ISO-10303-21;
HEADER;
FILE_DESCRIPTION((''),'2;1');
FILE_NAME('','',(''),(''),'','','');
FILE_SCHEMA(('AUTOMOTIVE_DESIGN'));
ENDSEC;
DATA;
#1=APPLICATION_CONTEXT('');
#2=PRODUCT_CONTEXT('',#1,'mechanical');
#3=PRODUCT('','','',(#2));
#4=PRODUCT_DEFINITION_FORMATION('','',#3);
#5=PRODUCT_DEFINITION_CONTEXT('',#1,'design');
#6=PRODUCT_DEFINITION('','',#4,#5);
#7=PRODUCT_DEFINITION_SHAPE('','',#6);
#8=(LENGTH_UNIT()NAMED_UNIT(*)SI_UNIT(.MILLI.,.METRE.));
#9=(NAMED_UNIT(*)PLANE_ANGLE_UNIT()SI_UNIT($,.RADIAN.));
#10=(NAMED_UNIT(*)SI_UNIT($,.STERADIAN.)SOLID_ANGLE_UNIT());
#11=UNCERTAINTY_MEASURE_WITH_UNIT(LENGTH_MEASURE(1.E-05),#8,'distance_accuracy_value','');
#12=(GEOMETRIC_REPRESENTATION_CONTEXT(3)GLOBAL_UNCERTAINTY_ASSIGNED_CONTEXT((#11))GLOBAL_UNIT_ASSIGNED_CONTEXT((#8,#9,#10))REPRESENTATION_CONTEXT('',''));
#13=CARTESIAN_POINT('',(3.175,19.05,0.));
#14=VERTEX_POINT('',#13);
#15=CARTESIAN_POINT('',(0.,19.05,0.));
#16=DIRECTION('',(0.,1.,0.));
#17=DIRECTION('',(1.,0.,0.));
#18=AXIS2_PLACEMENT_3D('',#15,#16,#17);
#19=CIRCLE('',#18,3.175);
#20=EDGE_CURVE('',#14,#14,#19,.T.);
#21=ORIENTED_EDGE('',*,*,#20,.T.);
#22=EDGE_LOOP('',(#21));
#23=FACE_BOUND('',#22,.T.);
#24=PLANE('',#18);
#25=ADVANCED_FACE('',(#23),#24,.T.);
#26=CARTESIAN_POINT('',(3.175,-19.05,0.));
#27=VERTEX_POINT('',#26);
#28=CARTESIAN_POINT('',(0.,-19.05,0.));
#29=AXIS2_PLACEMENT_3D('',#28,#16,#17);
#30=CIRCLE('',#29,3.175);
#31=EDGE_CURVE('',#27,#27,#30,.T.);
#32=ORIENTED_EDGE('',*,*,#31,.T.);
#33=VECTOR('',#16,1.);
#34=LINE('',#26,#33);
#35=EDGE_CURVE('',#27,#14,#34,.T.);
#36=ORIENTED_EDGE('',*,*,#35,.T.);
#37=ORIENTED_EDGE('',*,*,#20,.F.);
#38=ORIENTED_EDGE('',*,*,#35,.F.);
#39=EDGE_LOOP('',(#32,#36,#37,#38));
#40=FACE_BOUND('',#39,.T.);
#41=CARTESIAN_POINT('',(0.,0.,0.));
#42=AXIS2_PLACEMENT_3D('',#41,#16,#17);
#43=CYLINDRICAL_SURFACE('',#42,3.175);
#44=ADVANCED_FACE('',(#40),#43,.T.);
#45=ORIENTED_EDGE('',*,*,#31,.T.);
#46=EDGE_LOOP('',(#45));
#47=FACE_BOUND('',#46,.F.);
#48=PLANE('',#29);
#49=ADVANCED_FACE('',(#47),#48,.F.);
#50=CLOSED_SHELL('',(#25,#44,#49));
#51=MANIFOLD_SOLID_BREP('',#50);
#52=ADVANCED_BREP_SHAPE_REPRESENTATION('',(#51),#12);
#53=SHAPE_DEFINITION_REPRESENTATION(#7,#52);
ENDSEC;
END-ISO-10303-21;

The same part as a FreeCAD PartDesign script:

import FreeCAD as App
import Part
import Sketcher
Q = App.Units.Quantity

doc = App.newDocument("Part")
body = doc.addObject("PartDesign::Body", "Body")

sketch1 = body.newObject("Sketcher::SketchObject", "Sketch")
sketch1.AttachmentSupport = (doc.getObject("XZ_Plane"), [""])
sketch1.MapMode = "FlatFace"
sketch1.addGeometry(Part.Circle(App.Vector(0, 0, 0), App.Vector(0, 0, 1), 3.2), False)
sketch1.addConstraint(Sketcher.Constraint("Coincident", 0, 3, -1, 1))
sketch1.addConstraint(Sketcher.Constraint("Diameter", 0, Q("0.25 in")))
pad1 = body.newObject("PartDesign::Pad", "Pad")
pad1.Profile = sketch1
pad1.Length = Q("1.5 in")
pad1.Midplane = True

doc.recompute()
